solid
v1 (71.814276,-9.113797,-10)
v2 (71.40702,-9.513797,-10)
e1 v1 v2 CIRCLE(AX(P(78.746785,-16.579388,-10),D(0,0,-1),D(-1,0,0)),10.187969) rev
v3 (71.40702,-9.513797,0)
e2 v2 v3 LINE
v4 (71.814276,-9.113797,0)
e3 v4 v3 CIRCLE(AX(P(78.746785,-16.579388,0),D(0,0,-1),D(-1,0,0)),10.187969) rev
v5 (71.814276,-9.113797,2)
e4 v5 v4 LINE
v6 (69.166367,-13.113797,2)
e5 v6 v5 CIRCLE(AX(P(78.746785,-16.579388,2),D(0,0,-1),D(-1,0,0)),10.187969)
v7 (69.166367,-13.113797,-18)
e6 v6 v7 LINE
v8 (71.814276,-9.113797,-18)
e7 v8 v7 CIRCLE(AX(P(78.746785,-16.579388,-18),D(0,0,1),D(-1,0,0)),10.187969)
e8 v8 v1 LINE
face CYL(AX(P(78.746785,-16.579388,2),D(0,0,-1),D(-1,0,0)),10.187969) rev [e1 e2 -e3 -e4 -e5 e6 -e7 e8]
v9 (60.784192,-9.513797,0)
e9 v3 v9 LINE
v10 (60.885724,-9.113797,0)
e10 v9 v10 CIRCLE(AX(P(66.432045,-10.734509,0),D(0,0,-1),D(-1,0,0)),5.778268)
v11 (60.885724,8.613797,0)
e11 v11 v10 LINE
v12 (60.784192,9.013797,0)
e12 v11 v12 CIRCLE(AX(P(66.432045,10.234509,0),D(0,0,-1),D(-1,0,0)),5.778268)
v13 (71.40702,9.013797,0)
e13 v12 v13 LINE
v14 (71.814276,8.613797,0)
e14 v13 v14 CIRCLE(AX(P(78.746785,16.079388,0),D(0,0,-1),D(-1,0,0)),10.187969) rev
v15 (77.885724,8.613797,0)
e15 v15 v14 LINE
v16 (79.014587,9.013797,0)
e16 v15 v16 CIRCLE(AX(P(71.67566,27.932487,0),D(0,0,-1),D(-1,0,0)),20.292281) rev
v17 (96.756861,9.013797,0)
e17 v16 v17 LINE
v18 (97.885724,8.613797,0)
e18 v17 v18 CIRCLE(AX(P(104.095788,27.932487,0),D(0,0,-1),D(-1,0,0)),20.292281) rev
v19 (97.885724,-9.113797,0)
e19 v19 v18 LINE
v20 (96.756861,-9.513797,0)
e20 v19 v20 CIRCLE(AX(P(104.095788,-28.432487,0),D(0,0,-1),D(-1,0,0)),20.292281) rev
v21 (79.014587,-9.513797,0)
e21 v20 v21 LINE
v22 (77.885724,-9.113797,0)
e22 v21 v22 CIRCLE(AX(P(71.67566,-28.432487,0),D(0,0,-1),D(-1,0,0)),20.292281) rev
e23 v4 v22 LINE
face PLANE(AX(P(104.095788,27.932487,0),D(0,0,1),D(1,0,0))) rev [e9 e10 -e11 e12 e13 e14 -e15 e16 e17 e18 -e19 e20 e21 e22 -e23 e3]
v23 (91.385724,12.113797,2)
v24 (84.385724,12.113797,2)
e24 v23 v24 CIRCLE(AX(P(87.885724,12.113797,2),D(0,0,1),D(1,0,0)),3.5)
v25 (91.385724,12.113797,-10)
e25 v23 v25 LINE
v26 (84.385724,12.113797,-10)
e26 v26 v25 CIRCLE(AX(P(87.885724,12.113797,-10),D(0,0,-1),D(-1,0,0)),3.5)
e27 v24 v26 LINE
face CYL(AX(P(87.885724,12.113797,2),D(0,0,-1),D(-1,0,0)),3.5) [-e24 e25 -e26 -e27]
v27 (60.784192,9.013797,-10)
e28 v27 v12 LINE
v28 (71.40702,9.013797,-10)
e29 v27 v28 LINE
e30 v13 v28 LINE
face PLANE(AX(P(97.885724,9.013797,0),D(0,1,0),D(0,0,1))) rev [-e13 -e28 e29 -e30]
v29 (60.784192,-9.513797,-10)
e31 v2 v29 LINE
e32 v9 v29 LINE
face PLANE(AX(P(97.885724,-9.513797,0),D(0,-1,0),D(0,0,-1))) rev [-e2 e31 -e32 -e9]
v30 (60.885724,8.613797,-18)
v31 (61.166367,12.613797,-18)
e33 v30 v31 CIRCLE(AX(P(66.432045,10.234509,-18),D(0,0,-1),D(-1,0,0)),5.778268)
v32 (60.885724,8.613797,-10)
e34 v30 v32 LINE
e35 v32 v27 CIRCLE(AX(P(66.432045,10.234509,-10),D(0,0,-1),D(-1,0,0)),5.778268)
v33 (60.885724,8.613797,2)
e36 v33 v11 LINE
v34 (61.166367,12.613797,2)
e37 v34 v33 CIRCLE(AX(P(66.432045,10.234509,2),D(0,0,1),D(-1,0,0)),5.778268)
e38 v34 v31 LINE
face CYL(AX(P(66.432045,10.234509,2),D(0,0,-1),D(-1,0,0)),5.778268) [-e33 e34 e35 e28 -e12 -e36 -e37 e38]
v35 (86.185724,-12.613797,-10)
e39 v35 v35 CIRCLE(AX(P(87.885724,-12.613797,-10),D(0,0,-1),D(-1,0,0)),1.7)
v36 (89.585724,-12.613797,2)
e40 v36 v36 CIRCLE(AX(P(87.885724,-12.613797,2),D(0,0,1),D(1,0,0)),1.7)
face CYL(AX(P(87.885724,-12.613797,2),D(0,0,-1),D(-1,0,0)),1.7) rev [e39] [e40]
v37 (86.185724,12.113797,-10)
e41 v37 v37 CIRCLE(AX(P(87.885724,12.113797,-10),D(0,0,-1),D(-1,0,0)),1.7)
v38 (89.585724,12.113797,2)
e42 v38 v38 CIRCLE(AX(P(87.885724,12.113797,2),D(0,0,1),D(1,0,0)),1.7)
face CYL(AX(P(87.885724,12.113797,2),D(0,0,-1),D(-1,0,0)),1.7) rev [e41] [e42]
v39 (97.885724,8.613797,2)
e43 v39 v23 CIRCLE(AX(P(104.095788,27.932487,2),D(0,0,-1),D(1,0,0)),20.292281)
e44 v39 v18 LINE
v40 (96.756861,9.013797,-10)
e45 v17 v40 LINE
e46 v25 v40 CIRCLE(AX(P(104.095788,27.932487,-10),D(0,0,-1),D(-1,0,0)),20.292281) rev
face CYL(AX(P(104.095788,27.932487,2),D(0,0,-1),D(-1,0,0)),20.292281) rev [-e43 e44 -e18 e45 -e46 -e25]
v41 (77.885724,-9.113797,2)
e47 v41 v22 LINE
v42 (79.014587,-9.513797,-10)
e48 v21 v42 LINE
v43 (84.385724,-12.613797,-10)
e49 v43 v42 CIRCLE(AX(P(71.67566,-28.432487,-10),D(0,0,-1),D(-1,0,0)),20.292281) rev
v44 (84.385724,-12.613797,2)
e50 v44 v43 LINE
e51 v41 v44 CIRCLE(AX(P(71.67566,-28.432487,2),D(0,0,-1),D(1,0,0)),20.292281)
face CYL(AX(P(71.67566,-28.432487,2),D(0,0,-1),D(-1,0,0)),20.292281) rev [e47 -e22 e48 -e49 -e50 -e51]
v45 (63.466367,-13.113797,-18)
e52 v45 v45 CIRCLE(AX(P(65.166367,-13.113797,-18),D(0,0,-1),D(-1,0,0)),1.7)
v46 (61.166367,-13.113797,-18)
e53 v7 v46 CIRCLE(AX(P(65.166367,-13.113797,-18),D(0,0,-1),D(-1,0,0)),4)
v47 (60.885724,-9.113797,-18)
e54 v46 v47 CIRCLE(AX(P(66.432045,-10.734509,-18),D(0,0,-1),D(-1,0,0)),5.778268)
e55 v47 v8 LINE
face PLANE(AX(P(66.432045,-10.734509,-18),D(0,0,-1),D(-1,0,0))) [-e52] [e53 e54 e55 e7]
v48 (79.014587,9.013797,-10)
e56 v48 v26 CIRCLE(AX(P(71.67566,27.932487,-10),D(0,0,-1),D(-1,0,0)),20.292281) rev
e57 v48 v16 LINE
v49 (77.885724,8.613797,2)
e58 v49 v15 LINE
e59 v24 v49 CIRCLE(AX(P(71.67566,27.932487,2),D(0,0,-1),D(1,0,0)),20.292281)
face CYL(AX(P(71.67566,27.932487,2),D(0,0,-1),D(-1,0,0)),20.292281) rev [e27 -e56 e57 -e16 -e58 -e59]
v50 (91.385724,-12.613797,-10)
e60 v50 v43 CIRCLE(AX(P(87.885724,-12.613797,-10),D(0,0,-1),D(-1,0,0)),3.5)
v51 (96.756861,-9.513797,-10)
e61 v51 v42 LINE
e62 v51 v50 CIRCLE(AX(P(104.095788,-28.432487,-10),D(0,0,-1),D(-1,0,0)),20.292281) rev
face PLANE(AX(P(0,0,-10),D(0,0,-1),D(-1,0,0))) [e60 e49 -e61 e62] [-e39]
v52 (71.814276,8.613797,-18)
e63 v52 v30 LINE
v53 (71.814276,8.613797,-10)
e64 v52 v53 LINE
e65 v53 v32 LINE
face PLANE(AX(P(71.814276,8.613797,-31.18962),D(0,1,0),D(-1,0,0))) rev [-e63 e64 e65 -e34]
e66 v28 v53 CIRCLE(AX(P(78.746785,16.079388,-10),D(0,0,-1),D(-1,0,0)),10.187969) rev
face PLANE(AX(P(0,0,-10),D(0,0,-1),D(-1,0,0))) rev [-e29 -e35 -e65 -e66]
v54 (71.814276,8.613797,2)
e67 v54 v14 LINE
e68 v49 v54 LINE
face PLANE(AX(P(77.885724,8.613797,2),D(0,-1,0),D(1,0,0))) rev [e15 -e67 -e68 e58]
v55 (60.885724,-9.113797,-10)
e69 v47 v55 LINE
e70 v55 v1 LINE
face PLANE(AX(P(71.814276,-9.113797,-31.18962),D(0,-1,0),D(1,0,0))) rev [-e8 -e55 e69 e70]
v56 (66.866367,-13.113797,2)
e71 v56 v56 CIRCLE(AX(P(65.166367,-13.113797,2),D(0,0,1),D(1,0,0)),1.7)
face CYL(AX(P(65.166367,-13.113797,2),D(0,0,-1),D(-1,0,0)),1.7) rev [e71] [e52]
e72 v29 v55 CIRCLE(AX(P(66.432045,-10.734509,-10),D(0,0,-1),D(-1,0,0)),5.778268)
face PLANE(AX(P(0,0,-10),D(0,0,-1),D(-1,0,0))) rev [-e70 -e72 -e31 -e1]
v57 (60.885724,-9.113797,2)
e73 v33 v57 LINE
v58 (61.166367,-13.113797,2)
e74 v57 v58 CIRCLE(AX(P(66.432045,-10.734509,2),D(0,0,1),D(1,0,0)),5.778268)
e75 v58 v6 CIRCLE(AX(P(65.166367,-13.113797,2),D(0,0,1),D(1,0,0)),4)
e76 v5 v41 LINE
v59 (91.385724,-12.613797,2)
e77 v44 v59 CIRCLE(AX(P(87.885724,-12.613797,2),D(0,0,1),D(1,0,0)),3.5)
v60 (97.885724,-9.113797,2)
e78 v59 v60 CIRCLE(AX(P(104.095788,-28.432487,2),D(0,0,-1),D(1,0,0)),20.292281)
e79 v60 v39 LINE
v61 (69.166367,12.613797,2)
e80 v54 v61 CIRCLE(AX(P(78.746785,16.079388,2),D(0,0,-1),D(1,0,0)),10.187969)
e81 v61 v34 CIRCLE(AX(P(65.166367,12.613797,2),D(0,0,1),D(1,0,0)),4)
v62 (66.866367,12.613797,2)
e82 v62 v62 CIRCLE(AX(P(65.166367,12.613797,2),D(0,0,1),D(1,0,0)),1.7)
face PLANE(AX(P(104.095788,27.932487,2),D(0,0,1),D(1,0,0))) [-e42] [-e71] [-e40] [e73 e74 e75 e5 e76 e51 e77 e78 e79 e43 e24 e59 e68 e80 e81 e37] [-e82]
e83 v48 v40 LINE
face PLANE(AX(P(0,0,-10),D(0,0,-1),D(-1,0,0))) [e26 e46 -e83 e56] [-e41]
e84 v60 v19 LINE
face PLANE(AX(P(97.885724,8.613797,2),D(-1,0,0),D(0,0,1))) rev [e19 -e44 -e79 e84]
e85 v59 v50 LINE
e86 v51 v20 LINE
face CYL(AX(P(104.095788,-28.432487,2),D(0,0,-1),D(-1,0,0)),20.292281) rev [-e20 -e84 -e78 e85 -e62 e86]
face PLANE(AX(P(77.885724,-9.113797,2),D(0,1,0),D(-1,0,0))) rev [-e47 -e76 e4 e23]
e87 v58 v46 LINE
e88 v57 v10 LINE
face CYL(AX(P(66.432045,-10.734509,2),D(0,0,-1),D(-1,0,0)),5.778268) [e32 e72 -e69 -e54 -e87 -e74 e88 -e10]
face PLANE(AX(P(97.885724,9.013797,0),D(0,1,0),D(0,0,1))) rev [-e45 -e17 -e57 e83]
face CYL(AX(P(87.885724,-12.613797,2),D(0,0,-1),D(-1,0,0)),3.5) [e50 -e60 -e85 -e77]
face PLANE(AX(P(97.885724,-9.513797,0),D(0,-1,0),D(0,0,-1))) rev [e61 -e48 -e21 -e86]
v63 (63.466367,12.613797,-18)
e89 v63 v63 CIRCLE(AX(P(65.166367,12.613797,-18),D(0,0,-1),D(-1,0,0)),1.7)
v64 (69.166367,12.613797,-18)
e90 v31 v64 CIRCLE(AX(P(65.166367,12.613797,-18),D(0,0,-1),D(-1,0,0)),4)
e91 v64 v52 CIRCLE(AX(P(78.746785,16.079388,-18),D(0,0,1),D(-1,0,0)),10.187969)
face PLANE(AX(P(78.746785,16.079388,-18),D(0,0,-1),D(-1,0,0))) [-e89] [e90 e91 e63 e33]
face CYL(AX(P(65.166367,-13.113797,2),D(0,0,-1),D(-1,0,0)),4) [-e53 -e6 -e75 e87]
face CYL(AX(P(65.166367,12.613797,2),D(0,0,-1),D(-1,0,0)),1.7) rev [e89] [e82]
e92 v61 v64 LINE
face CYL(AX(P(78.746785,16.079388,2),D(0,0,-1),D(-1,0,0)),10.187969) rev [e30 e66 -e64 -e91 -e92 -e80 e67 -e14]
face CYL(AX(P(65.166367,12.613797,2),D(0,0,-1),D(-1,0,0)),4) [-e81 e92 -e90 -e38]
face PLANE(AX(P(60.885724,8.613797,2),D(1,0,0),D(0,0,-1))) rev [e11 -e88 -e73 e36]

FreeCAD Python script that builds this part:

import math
import FreeCAD as App
import Part
import Sketcher

V = App.Vector
Q = App.Units.Quantity

doc = App.newDocument("Part")
params = doc.addObject("Spreadsheet::Sheet", "Params")
for row, (alias, value) in enumerate([
    ("sketch1_radius", "4 mm"),
    ("sketch1_diameter", "3.4 mm"),
    ("sketch1_radius2", "3.5 mm"),
    ("pad1_length", "2 mm"),
    ("sketch2_radius", "4 mm"),
    ("sketch2_diameter", "3.4 mm"),
    ("sketch2_radius2", "3.5 mm"),
    ("sketch2_width", "20 mm"),
    ("pad2_length", "10 mm"),
    ("sketch3_radius", "4 mm"),
    ("sketch3_diameter", "3.4 mm"),
    ("pad3_length", "8 mm"),
    ("pocket1_length", "10 mm"),
], start=1):
    params.set(f"A{row}", alias)
    params.set(f"B{row}", "=" + value)
    params.setAlias(f"B{row}", alias)

body = doc.addObject("PartDesign::Body", "Body")

# Sketch on XY plane
sketch1 = body.newObject("Sketcher::SketchObject", "Sketch")
sketch1.AttachmentSupport = (doc.getObject("XY_Plane"), [""])
sketch1.MapMode = "FlatFace"
sketch1.addGeometry(Part.LineSegment(V(77.885724, 8.613797, 0), V(71.814276, 8.613797, 0)), False)
sketch1.addGeometry(Part.ArcOfCircle(Part.Circle(V(78.746785, 16.079388, 0), V(0, 0, 1), 10.187969), math.radians(-160.113074), math.radians(-132.879625)), False)
sketch1.addGeometry(Part.ArcOfCircle(Part.Circle(V(65.166367, 12.613797, 0), V(0, 0, 1), 4), math.radians(0), math.radians(180)), False)
sketch1.addGeometry(Part.ArcOfCircle(Part.Circle(V(66.432045, 10.234509, 0), V(0, 0, 1), 5.778268), math.radians(155.684239), math.radians(196.28909)), False)
sketch1.addGeometry(Part.LineSegment(V(60.885724, 8.613797, 0), V(60.885724, -9.113797, 0)), False)
sketch1.addGeometry(Part.ArcOfCircle(Part.Circle(V(66.432045, -10.734509, 0), V(0, 0, 1), 5.778268), math.radians(163.71091), math.radians(204.315761)), False)
sketch1.addGeometry(Part.ArcOfCircle(Part.Circle(V(65.166367, -13.113797, 0), V(0, 0, 1), 4), math.radians(180), math.radians(360)), False)
sketch1.addGeometry(Part.ArcOfCircle(Part.Circle(V(78.746785, -16.579388, 0), V(0, 0, 1), 10.187969), math.radians(132.879625), math.radians(160.113074)), False)
sketch1.addGeometry(Part.LineSegment(V(71.814276, -9.113797, 0), V(77.885724, -9.113797, 0)), False)
sketch1.addGeometry(Part.ArcOfCircle(Part.Circle(V(71.67566, -28.432487, 0), V(0, 0, 1), 20.292281), math.radians(51.218681), math.radians(72.179808)), False)
sketch1.addGeometry(Part.ArcOfCircle(Part.Circle(V(87.885724, -12.613797, 0), V(0, 0, 1), 3.5), math.radians(180), math.radians(360)), False)
sketch1.addGeometry(Part.ArcOfCircle(Part.Circle(V(104.095788, -28.432487, 0), V(0, 0, 1), 20.292281), math.radians(107.820192), math.radians(128.781319)), False)
sketch1.addGeometry(Part.LineSegment(V(97.885724, -9.113797, 0), V(97.885724, 8.613797, 0)), False)
sketch1.addGeometry(Part.ArcOfCircle(Part.Circle(V(104.095788, 27.932487, 0), V(0, 0, 1), 20.292281), math.radians(-128.781319), math.radians(-107.820192)), False)
sketch1.addGeometry(Part.ArcOfCircle(Part.Circle(V(87.885724, 12.113797, 0), V(0, 0, 1), 3.5), math.radians(0), math.radians(180)), False)
sketch1.addGeometry(Part.ArcOfCircle(Part.Circle(V(71.67566, 27.932487, 0), V(0, 0, 1), 20.292281), math.radians(-72.179808), math.radians(-51.218681)), False)
sketch1.addGeometry(Part.Circle(V(65.166367, -13.113797, 0), V(0, 0, 1), 1.7), False)
sketch1.addGeometry(Part.Circle(V(87.885724, -12.613797, 0), V(0, 0, 1), 1.7), False)
sketch1.addGeometry(Part.Circle(V(65.166367, 12.613797, 0), V(0, 0, 1), 1.7), False)
sketch1.addGeometry(Part.Circle(V(87.885724, 12.113797, 0), V(0, 0, 1), 1.7), False)
sketch1.addConstraint(Sketcher.Constraint("Coincident", 0, 2, 1, 2))
sketch1.addConstraint(Sketcher.Constraint("Coincident", 1, 1, 2, 1))
sketch1.addConstraint(Sketcher.Constraint("Coincident", 2, 2, 3, 1))
sketch1.addConstraint(Sketcher.Constraint("Coincident", 3, 2, 4, 1))
sketch1.addConstraint(Sketcher.Constraint("Coincident", 4, 2, 5, 1))
sketch1.addConstraint(Sketcher.Constraint("Coincident", 5, 2, 6, 1))
sketch1.addConstraint(Sketcher.Constraint("Coincident", 6, 2, 7, 2))
sketch1.addConstraint(Sketcher.Constraint("Coincident", 7, 1, 8, 1))
sketch1.addConstraint(Sketcher.Constraint("Coincident", 8, 2, 9, 2))
sketch1.addConstraint(Sketcher.Constraint("Coincident", 9, 1, 10, 1))
sketch1.addConstraint(Sketcher.Constraint("Coincident", 10, 2, 11, 2))
sketch1.addConstraint(Sketcher.Constraint("Coincident", 11, 1, 12, 1))
sketch1.addConstraint(Sketcher.Constraint("Coincident", 12, 2, 13, 2))
sketch1.addConstraint(Sketcher.Constraint("Coincident", 13, 1, 14, 1))
sketch1.addConstraint(Sketcher.Constraint("Coincident", 14, 2, 15, 2))
sketch1.addConstraint(Sketcher.Constraint("Coincident", 15, 1, 0, 1))
sketch1.addConstraint(Sketcher.Constraint("Horizontal", 0))
sketch1.addConstraint(Sketcher.Constraint("Vertical", 4))
sketch1.addConstraint(Sketcher.Constraint("Horizontal", 8))
sketch1.addConstraint(Sketcher.Constraint("Vertical", 12))
sketch1.addConstraint(Sketcher.Constraint("Coincident", 16, 3, 6, 3))
sketch1.addConstraint(Sketcher.Constraint("Coincident", 17, 3, 10, 3))
sketch1.addConstraint(Sketcher.Constraint("Coincident", 18, 3, 2, 3))
sketch1.addConstraint(Sketcher.Constraint("Coincident", 19, 3, 14, 3))
sketch1.addConstraint(Sketcher.Constraint("Equal", 3, 5))
sketch1.addConstraint(Sketcher.Constraint("Equal", 2, 6))
sketch1.addConstraint(Sketcher.Constraint("Equal", 1, 7))
sketch1.addConstraint(Sketcher.Constraint("Equal", 9, 11))
sketch1.addConstraint(Sketcher.Constraint("Equal", 11, 13))
sketch1.addConstraint(Sketcher.Constraint("Equal", 10, 14))
sketch1.addConstraint(Sketcher.Constraint("Equal", 13, 15))
sketch1.addConstraint(Sketcher.Constraint("Equal", 16, 17))
sketch1.addConstraint(Sketcher.Constraint("Equal", 17, 18))
sketch1.addConstraint(Sketcher.Constraint("Equal", 18, 19))
sketch1.addConstraint(Sketcher.Constraint("Horizontal", 9, 3, 11, 3))
sketch1.addConstraint(Sketcher.Constraint("Horizontal", 13, 3, 15, 3))
sketch1.addConstraint(Sketcher.Constraint("Horizontal", 18, 3, 1, 1))
sketch1.addConstraint(Sketcher.Constraint("Horizontal", 1, 1, 2, 2))
sketch1.addConstraint(Sketcher.Constraint("Horizontal", 0, 2, 3, 2))
sketch1.addConstraint(Sketcher.Constraint("Horizontal", 16, 3, 5, 2))
sketch1.addConstraint(Sketcher.Constraint("Horizontal", 5, 2, 6, 2))
sketch1.addConstraint(Sketcher.Constraint("Horizontal", 4, 2, 7, 1))
sketch1.addConstraint(Sketcher.Constraint("Horizontal", 17, 3, 9, 1))
sketch1.addConstraint(Sketcher.Constraint("Horizontal", 9, 1, 10, 2))
sketch1.addConstraint(Sketcher.Constraint("Horizontal", 8, 2, 11, 1))
sketch1.addConstraint(Sketcher.Constraint("Horizontal", 3, 2, 12, 2))
sketch1.addConstraint(Sketcher.Constraint("Horizontal", 19, 3, 13, 1))
sketch1.addConstraint(Sketcher.Constraint("Horizontal", 13, 1, 14, 2))
sketch1.addConstraint(Sketcher.Constraint("Vertical", 3, 3, 5, 3))
sketch1.addConstraint(Sketcher.Constraint("Vertical", 2, 3, 6, 3))
sketch1.addConstraint(Sketcher.Constraint("Vertical", 1, 3, 7, 3))
sketch1.addConstraint(Sketcher.Constraint("Vertical", 11, 3, 13, 3))
sketch1.addConstraint(Sketcher.Constraint("Vertical", 10, 3, 14, 3))
sketch1.addConstraint(Sketcher.Constraint("Radius", 2, Q("4 mm")))
sketch1.addConstraint(Sketcher.Constraint("Diameter", 16, Q("3.4 mm")))
sketch1.addConstraint(Sketcher.Constraint("Radius", 10, Q("3.5 mm")))
sketch1.addConstraint(Sketcher.Constraint("DistanceY", 0, 2, 2, 3, Q("4 mm")))
sketch1.addConstraint(Sketcher.Constraint("DistanceX", 8, 2, 10, 3, Q("10 mm")))
sketch1.addConstraint(Sketcher.Constraint("DistanceY", 6, 3, 10, 3, Q("0.5 mm")))
sketch1.addConstraint(Sketcher.Constraint("Radius", 1, Q("10.187969 mm")))
sketch1.addConstraint(Sketcher.Constraint("Radius", 9, Q("20.292281 mm")))
sketch1.addConstraint(Sketcher.Constraint("Radius", 3, Q("5.778268 mm")))
sketch1.addConstraint(Sketcher.Constraint("DistanceX", 0, 2, 0, 1, Q("6.071448 mm")))
sketch1.addConstraint(Sketcher.Constraint("DistanceY", 9, 3, 7, 3, Q("11.8531 mm")))
sketch1.addConstraint(Sketcher.Constraint("DistanceY", 4, 2, 4, 1, Q("17.727594 mm")))
sketch1.addConstraint(Sketcher.Constraint("DistanceY", -1, 1, 3, 3, Q("10.234509 mm")))
sketch1.addConstraint(Sketcher.Constraint("DistanceY", 5, 3, -1, 1, Q("10.734509 mm")))
sketch1.addConstraint(Sketcher.Constraint("DistanceX", -1, 1, 9, 3, Q("71.67566 mm")))
sketch1.setExpression("Constraints[53]", "Params.sketch1_radius")
sketch1.setExpression("Constraints[54]", "Params.sketch1_diameter")
sketch1.setExpression("Constraints[55]", "Params.sketch1_radius2")
pad1 = body.newObject("PartDesign::Pad", "Pad")
pad1.Profile = sketch1
pad1.setExpression("Length", "Params.pad1_length")

# Sketch on XY plane
sketch2 = body.newObject("Sketcher::SketchObject", "Sketch001")
sketch2.AttachmentSupport = (doc.getObject("XY_Plane"), [""])
sketch2.MapMode = "FlatFace"
sketch2.AttachmentOffset = App.Placement(V(0, 0, -10), App.Rotation())
sketch2.addGeometry(Part.LineSegment(V(77.885724, -9.113797, 0), V(97.885724, -9.113797, 0)), False)
sketch2.addGeometry(Part.ArcOfCircle(Part.Circle(V(104.095788, -28.432487, 0), V(0, 0, 1), 20.292281), math.radians(107.820192), math.radians(128.781319)), False)
sketch2.addGeometry(Part.ArcOfCircle(Part.Circle(V(87.885724, -12.613797, 0), V(0, 0, 1), 3.5), math.radians(180), math.radians(360)), False)
sketch2.addGeometry(Part.ArcOfCircle(Part.Circle(V(71.67566, -28.432487, 0), V(0, 0, 1), 20.292281), math.radians(51.218681), math.radians(72.179808)), False)
sketch2.addGeometry(Part.Circle(V(87.885724, -12.613797, 0), V(0, 0, 1), 1.7), False)
sketch2.addGeometry(Part.LineSegment(V(97.885724, 8.613797, 0), V(77.885724, 8.613797, 0)), False)
sketch2.addGeometry(Part.ArcOfCircle(Part.Circle(V(71.67566, 27.932487, 0), V(0, 0, 1), 20.292281), math.radians(-72.179808), math.radians(-51.218681)), False)
sketch2.addGeometry(Part.ArcOfCircle(Part.Circle(V(87.885724, 12.113797, 0), V(0, 0, 1), 3.5), math.radians(0), math.radians(180)), False)
sketch2.addGeometry(Part.ArcOfCircle(Part.Circle(V(104.095788, 27.932487, 0), V(0, 0, 1), 20.292281), math.radians(-128.781319), math.radians(-107.820192)), False)
sketch2.addGeometry(Part.Circle(V(87.885724, 12.113797, 0), V(0, 0, 1), 1.7), False)
sketch2.addGeometry(Part.LineSegment(V(71.814276, 8.613797, 0), V(60.885724, 8.613797, 0)), False)
sketch2.addGeometry(Part.ArcOfCircle(Part.Circle(V(66.432045, 10.234509, 0), V(0, 0, 1), 5.778268), math.radians(155.684239), math.radians(196.28909)), False)
sketch2.addGeometry(Part.ArcOfCircle(Part.Circle(V(65.166367, 12.613797, 0), V(0, 0, 1), 4), math.radians(0), math.radians(180)), False)
sketch2.addGeometry(Part.ArcOfCircle(Part.Circle(V(78.746785, 16.079388, 0), V(0, 0, 1), 10.187969), math.radians(-160.113074), math.radians(-132.879625)), False)
sketch2.addGeometry(Part.Circle(V(65.166367, 12.613797, 0), V(0, 0, 1), 1.7), False)
sketch2.addGeometry(Part.LineSegment(V(60.885724, -9.113797, 0), V(71.814276, -9.113797, 0)), False)
sketch2.addGeometry(Part.ArcOfCircle(Part.Circle(V(78.746785, -16.579388, 0), V(0, 0, 1), 10.187969), math.radians(132.879625), math.radians(160.113074)), False)
sketch2.addGeometry(Part.ArcOfCircle(Part.Circle(V(65.166367, -13.113797, 0), V(0, 0, 1), 4), math.radians(180), math.radians(360)), False)
sketch2.addGeometry(Part.ArcOfCircle(Part.Circle(V(66.432045, -10.734509, 0), V(0, 0, 1), 5.778268), math.radians(163.71091), math.radians(204.315761)), False)
sketch2.addGeometry(Part.Circle(V(65.166367, -13.113797, 0), V(0, 0, 1), 1.7), False)
sketch2.addConstraint(Sketcher.Constraint("Coincident", 0, 2, 1, 1))
sketch2.addConstraint(Sketcher.Constraint("Coincident", 1, 2, 2, 2))
sketch2.addConstraint(Sketcher.Constraint("Coincident", 2, 1, 3, 1))
sketch2.addConstraint(Sketcher.Constraint("Coincident", 3, 2, 0, 1))
sketch2.addConstraint(Sketcher.Constraint("Coincident", 5, 2, 6, 1))
sketch2.addConstraint(Sketcher.Constraint("Coincident", 6, 2, 7, 2))
sketch2.addConstraint(Sketcher.Constraint("Coincident", 7, 1, 8, 1))
sketch2.addConstraint(Sketcher.Constraint("Coincident", 8, 2, 5, 1))
sketch2.addConstraint(Sketcher.Constraint("Coincident", 10, 2, 11, 2))
sketch2.addConstraint(Sketcher.Constraint("Coincident", 11, 1, 12, 2))
sketch2.addConstraint(Sketcher.Constraint("Coincident", 12, 1, 13, 1))
sketch2.addConstraint(Sketcher.Constraint("Coincident", 13, 2, 10, 1))
sketch2.addConstraint(Sketcher.Constraint("Coincident", 15, 2, 16, 1))
sketch2.addConstraint(Sketcher.Constraint("Coincident", 16, 2, 17, 2))
sketch2.addConstraint(Sketcher.Constraint("Coincident", 17, 1, 18, 2))
sketch2.addConstraint(Sketcher.Constraint("Coincident", 18, 1, 15, 1))
sketch2.addConstraint(Sketcher.Constraint("Horizontal", 0))
sketch2.addConstraint(Sketcher.Constraint("Horizontal", 5))
sketch2.addConstraint(Sketcher.Constraint("Horizontal", 10))
sketch2.addConstraint(Sketcher.Constraint("Horizontal", 15))
sketch2.addConstraint(Sketcher.Constraint("Coincident", 4, 3, 2, 3))
sketch2.addConstraint(Sketcher.Constraint("Coincident", 9, 3, 7, 3))
sketch2.addConstraint(Sketcher.Constraint("Coincident", 14, 3, 12, 3))
sketch2.addConstraint(Sketcher.Constraint("Coincident", 19, 3, 17, 3))
sketch2.addConstraint(Sketcher.Constraint("Equal", 1, 3))
sketch2.addConstraint(Sketcher.Constraint("Equal", 3, 6))
sketch2.addConstraint(Sketcher.Constraint("Equal", 2, 7))
sketch2.addConstraint(Sketcher.Constraint("Equal", 6, 8))
sketch2.addConstraint(Sketcher.Constraint("Equal", 4, 9))
sketch2.addConstraint(Sketcher.Constraint("Equal", 9, 14))
sketch2.addConstraint(Sketcher.Constraint("Equal", 13, 16))
sketch2.addConstraint(Sketcher.Constraint("Equal", 12, 17))
sketch2.addConstraint(Sketcher.Constraint("Equal", 11, 18))
sketch2.addConstraint(Sketcher.Constraint("Equal", 14, 19))
sketch2.addConstraint(Sketcher.Constraint("Horizontal", 1, 3, 3, 3))
sketch2.addConstraint(Sketcher.Constraint("Horizontal", 6, 3, 8, 3))
sketch2.addConstraint(Sketcher.Constraint("Horizontal", 4, 3, 1, 2))
sketch2.addConstraint(Sketcher.Constraint("Horizontal", 1, 2, 2, 1))
sketch2.addConstraint(Sketcher.Constraint("Horizontal", 9, 3, 6, 2))
sketch2.addConstraint(Sketcher.Constraint("Horizontal", 6, 2, 7, 1))
sketch2.addConstraint(Sketcher.Constraint("Horizontal", 8, 2, 10, 2))
sketch2.addConstraint(Sketcher.Constraint("Horizontal", 14, 3, 11, 1))
sketch2.addConstraint(Sketcher.Constraint("Horizontal", 11, 1, 12, 1))
sketch2.addConstraint(Sketcher.Constraint("Horizontal", 3, 2, 15, 2))
sketch2.addConstraint(Sketcher.Constraint("Horizontal", 19, 3, 16, 2))
sketch2.addConstraint(Sketcher.Constraint("Horizontal", 16, 2, 17, 1))
sketch2.addConstraint(Sketcher.Constraint("Vertical", 3, 3, 6, 3))
sketch2.addConstraint(Sketcher.Constraint("Vertical", 4, 3, 7, 3))
sketch2.addConstraint(Sketcher.Constraint("Vertical", 13, 3, 16, 3))
sketch2.addConstraint(Sketcher.Constraint("Vertical", 14, 3, 17, 3))
sketch2.addConstraint(Sketcher.Constraint("Vertical", 11, 3, 18, 3))
sketch2.addConstraint(Sketcher.Constraint("Vertical", 3, 2, 5, 2))
sketch2.addConstraint(Sketcher.Constraint("Vertical", 13, 2, 15, 2))
sketch2.addConstraint(Sketcher.Constraint("Radius", 12, Q("4 mm")))
sketch2.addConstraint(Sketcher.Constraint("Diameter", 4, Q("3.4 mm")))
sketch2.addConstraint(Sketcher.Constraint("Radius", 2, Q("3.5 mm")))
sketch2.addConstraint(Sketcher.Constraint("DistanceX", 0, 1, 0, 2, Q("20 mm")))
sketch2.addConstraint(Sketcher.Constraint("DistanceY", 5, 2, 12, 3, Q("4 mm")))
sketch2.addConstraint(Sketcher.Constraint("DistanceX", 10, 2, 5, 2, Q("17 mm")))
sketch2.addConstraint(Sketcher.Constraint("DistanceY", 7, 3, 12, 3, Q("0.5 mm")))
sketch2.addConstraint(Sketcher.Constraint("Radius", 1, Q("20.292281 mm")))
sketch2.addConstraint(Sketcher.Constraint("Radius", 13, Q("10.187969 mm")))
sketch2.addConstraint(Sketcher.Constraint("Radius", 11, Q("5.778268 mm")))
sketch2.addConstraint(Sketcher.Constraint("DistanceX", 10, 2, 10, 1, Q("10.928552 mm")))
sketch2.addConstraint(Sketcher.Constraint("DistanceY", 13, 3, 6, 3, Q("11.8531 mm")))
sketch2.addConstraint(Sketcher.Constraint("DistanceX", -1, 1, 1, 3, Q("104.095788 mm")))
sketch2.addConstraint(Sketcher.Constraint("DistanceY", -1, 1, 11, 3, Q("10.234509 mm")))
sketch2.addConstraint(Sketcher.Constraint("DistanceY", 18, 3, -1, 1, Q("10.734509 mm")))
sketch2.setExpression("Constraints[53]", "Params.sketch2_radius")
sketch2.setExpression("Constraints[54]", "Params.sketch2_diameter")
sketch2.setExpression("Constraints[55]", "Params.sketch2_radius2")
sketch2.setExpression("Constraints[56]", "Params.sketch2_width")
pad2 = body.newObject("PartDesign::Pad", "Pad001")
pad2.Profile = sketch2
pad2.setExpression("Length", "Params.pad2_length")

# Sketch on XY plane
sketch3 = body.newObject("Sketcher::SketchObject", "Sketch002")
sketch3.AttachmentSupport = (doc.getObject("XY_Plane"), [""])
sketch3.MapMode = "FlatFace"
sketch3.AttachmentOffset = App.Placement(V(0, 0, -18), App.Rotation())
sketch3.addGeometry(Part.LineSegment(V(71.814276, 8.613797, 0), V(60.885724, 8.613797, 0)), False)
sketch3.addGeometry(Part.ArcOfCircle(Part.Circle(V(66.432045, 10.234509, 0), V(0, 0, 1), 5.778268), math.radians(155.684239), math.radians(196.28909)), False)
sketch3.addGeometry(Part.ArcOfCircle(Part.Circle(V(65.166367, 12.613797, 0), V(0, 0, 1), 4), math.radians(0), math.radians(180)), False)
sketch3.addGeometry(Part.ArcOfCircle(Part.Circle(V(78.746785, 16.079388, 0), V(0, 0, 1), 10.187969), math.radians(-160.113074), math.radians(-132.879625)), False)
sketch3.addGeometry(Part.Circle(V(65.166367, 12.613797, 0), V(0, 0, 1), 1.7), False)
sketch3.addGeometry(Part.LineSegment(V(60.885724, -9.113797, 0), V(71.814276, -9.113797, 0)), False)
sketch3.addGeometry(Part.ArcOfCircle(Part.Circle(V(78.746785, -16.579388, 0), V(0, 0, 1), 10.187969), math.radians(132.879625), math.radians(160.113074)), False)
sketch3.addGeometry(Part.ArcOfCircle(Part.Circle(V(65.166367, -13.113797, 0), V(0, 0, 1), 4), math.radians(180), math.radians(360)), False)
sketch3.addGeometry(Part.ArcOfCircle(Part.Circle(V(66.432045, -10.734509, 0), V(0, 0, 1), 5.778268), math.radians(163.71091), math.radians(204.315761)), False)
sketch3.addGeometry(Part.Circle(V(65.166367, -13.113797, 0), V(0, 0, 1), 1.7), False)
sketch3.addConstraint(Sketcher.Constraint("Coincident", 0, 2, 1, 2))
sketch3.addConstraint(Sketcher.Constraint("Coincident", 1, 1, 2, 2))
sketch3.addConstraint(Sketcher.Constraint("Coincident", 2, 1, 3, 1))
sketch3.addConstraint(Sketcher.Constraint("Coincident", 3, 2, 0, 1))
sketch3.addConstraint(Sketcher.Constraint("Coincident", 5, 2, 6, 1))
sketch3.addConstraint(Sketcher.Constraint("Coincident", 6, 2, 7, 2))
sketch3.addConstraint(Sketcher.Constraint("Coincident", 7, 1, 8, 2))
sketch3.addConstraint(Sketcher.Constraint("Coincident", 8, 1, 5, 1))
sketch3.addConstraint(Sketcher.Constraint("Horizontal", 0))
sketch3.addConstraint(Sketcher.Constraint("Horizontal", 5))
sketch3.addConstraint(Sketcher.Constraint("Coincident", 4, 3, 2, 3))
sketch3.addConstraint(Sketcher.Constraint("Coincident", 9, 3, 7, 3))
sketch3.addConstraint(Sketcher.Constraint("Equal", 3, 6))
sketch3.addConstraint(Sketcher.Constraint("Equal", 2, 7))
sketch3.addConstraint(Sketcher.Constraint("Equal", 1, 8))
sketch3.addConstraint(Sketcher.Constraint("Equal", 4, 9))
sketch3.addConstraint(Sketcher.Constraint("Horizontal", 4, 3, 1, 1))
sketch3.addConstraint(Sketcher.Constraint("Horizontal", 1, 1, 2, 1))
sketch3.addConstraint(Sketcher.Constraint("Horizontal", 9, 3, 6, 2))
sketch3.addConstraint(Sketcher.Constraint("Horizontal", 6, 2, 7, 1))
sketch3.addConstraint(Sketcher.Constraint("Vertical", 3, 3, 6, 3))
sketch3.addConstraint(Sketcher.Constraint("Vertical", 4, 3, 7, 3))
sketch3.addConstraint(Sketcher.Constraint("Vertical", 1, 3, 8, 3))
sketch3.addConstraint(Sketcher.Constraint("Vertical", 3, 2, 5, 2))
sketch3.addConstraint(Sketcher.Constraint("Radius", 2, Q("4 mm")))
sketch3.addConstraint(Sketcher.Constraint("Diameter", 4, Q("3.4 mm")))
sketch3.addConstraint(Sketcher.Constraint("DistanceY", 0, 2, 2, 3, Q("4 mm")))
sketch3.addConstraint(Sketcher.Constraint("Radius", 3, Q("10.187969 mm")))
sketch3.addConstraint(Sketcher.Constraint("Radius", 1, Q("5.778268 mm")))
sketch3.addConstraint(Sketcher.Constraint("DistanceX", 0, 2, 0, 1, Q("10.928552 mm")))
sketch3.addConstraint(Sketcher.Constraint("DistanceY", -1, 1, 1, 3, Q("10.234509 mm")))
sketch3.addConstraint(Sketcher.Constraint("DistanceY", 8, 3, -1, 1, Q("10.734509 mm")))
sketch3.addConstraint(Sketcher.Constraint("DistanceY", 1, 3, 2, 3, Q("2.379289 mm")))
sketch3.addConstraint(Sketcher.Constraint("DistanceX", -1, 1, 1, 3, Q("66.432045 mm")))
sketch3.setExpression("Constraints[24]", "Params.sketch3_radius")
sketch3.setExpression("Constraints[25]", "Params.sketch3_diameter")
pad3 = body.newObject("PartDesign::Pad", "Pad002")
pad3.Profile = sketch3
pad3.setExpression("Length", "Params.pad3_length")

# Sketch on XY plane
sketch4 = body.newObject("Sketcher::SketchObject", "Sketch003")
sketch4.AttachmentSupport = (doc.getObject("XY_Plane"), [""])
sketch4.MapMode = "FlatFace"
sketch4.AttachmentOffset = App.Placement(V(0, 0, -10), App.Rotation())
sketch4.addGeometry(Part.LineSegment(V(97.885724, 9.013797, 0), V(97.885724, -9.513797, 0)), False)
sketch4.addGeometry(Part.LineSegment(V(97.885724, -9.513797, 0), V(60.3771, -9.513797, 0)), False)
sketch4.addGeometry(Part.LineSegment(V(60.3771, -9.513797, 0), V(60.3771, 9.013797, 0)), False)
sketch4.addGeometry(Part.LineSegment(V(60.3771, 9.013797, 0), V(97.885724, 9.013797, 0)), False)
sketch4.addConstraint(Sketcher.Constraint("Coincident", 0, 2, 1, 1))
sketch4.addConstraint(Sketcher.Constraint("Coincident", 1, 2, 2, 1))
sketch4.addConstraint(Sketcher.Constraint("Coincident", 2, 2, 3, 1))
sketch4.addConstraint(Sketcher.Constraint("Coincident", 3, 2, 0, 1))
sketch4.addConstraint(Sketcher.Constraint("Vertical", 0))
sketch4.addConstraint(Sketcher.Constraint("Horizontal", 1))
sketch4.addConstraint(Sketcher.Constraint("Vertical", 2))
sketch4.addConstraint(Sketcher.Constraint("Horizontal", 3))
sketch4.addConstraint(Sketcher.Constraint("DistanceX", -1, 1, 1, 2, Q("60.3771 mm")))
sketch4.addConstraint(Sketcher.Constraint("DistanceX", 1, 2, 1, 1, Q("37.508624 mm")))
sketch4.addConstraint(Sketcher.Constraint("DistanceY", 0, 2, 0, 1, Q("18.527594 mm")))
sketch4.addConstraint(Sketcher.Constraint("DistanceY", 0, 2, -1, 1, Q("9.513797 mm")))
pocket1 = body.newObject("PartDesign::Pocket", "Pocket")
pocket1.Profile = sketch4
pocket1.setExpression("Length", "Params.pocket1_length")
pocket1.Reversed = True

doc.recompute()
